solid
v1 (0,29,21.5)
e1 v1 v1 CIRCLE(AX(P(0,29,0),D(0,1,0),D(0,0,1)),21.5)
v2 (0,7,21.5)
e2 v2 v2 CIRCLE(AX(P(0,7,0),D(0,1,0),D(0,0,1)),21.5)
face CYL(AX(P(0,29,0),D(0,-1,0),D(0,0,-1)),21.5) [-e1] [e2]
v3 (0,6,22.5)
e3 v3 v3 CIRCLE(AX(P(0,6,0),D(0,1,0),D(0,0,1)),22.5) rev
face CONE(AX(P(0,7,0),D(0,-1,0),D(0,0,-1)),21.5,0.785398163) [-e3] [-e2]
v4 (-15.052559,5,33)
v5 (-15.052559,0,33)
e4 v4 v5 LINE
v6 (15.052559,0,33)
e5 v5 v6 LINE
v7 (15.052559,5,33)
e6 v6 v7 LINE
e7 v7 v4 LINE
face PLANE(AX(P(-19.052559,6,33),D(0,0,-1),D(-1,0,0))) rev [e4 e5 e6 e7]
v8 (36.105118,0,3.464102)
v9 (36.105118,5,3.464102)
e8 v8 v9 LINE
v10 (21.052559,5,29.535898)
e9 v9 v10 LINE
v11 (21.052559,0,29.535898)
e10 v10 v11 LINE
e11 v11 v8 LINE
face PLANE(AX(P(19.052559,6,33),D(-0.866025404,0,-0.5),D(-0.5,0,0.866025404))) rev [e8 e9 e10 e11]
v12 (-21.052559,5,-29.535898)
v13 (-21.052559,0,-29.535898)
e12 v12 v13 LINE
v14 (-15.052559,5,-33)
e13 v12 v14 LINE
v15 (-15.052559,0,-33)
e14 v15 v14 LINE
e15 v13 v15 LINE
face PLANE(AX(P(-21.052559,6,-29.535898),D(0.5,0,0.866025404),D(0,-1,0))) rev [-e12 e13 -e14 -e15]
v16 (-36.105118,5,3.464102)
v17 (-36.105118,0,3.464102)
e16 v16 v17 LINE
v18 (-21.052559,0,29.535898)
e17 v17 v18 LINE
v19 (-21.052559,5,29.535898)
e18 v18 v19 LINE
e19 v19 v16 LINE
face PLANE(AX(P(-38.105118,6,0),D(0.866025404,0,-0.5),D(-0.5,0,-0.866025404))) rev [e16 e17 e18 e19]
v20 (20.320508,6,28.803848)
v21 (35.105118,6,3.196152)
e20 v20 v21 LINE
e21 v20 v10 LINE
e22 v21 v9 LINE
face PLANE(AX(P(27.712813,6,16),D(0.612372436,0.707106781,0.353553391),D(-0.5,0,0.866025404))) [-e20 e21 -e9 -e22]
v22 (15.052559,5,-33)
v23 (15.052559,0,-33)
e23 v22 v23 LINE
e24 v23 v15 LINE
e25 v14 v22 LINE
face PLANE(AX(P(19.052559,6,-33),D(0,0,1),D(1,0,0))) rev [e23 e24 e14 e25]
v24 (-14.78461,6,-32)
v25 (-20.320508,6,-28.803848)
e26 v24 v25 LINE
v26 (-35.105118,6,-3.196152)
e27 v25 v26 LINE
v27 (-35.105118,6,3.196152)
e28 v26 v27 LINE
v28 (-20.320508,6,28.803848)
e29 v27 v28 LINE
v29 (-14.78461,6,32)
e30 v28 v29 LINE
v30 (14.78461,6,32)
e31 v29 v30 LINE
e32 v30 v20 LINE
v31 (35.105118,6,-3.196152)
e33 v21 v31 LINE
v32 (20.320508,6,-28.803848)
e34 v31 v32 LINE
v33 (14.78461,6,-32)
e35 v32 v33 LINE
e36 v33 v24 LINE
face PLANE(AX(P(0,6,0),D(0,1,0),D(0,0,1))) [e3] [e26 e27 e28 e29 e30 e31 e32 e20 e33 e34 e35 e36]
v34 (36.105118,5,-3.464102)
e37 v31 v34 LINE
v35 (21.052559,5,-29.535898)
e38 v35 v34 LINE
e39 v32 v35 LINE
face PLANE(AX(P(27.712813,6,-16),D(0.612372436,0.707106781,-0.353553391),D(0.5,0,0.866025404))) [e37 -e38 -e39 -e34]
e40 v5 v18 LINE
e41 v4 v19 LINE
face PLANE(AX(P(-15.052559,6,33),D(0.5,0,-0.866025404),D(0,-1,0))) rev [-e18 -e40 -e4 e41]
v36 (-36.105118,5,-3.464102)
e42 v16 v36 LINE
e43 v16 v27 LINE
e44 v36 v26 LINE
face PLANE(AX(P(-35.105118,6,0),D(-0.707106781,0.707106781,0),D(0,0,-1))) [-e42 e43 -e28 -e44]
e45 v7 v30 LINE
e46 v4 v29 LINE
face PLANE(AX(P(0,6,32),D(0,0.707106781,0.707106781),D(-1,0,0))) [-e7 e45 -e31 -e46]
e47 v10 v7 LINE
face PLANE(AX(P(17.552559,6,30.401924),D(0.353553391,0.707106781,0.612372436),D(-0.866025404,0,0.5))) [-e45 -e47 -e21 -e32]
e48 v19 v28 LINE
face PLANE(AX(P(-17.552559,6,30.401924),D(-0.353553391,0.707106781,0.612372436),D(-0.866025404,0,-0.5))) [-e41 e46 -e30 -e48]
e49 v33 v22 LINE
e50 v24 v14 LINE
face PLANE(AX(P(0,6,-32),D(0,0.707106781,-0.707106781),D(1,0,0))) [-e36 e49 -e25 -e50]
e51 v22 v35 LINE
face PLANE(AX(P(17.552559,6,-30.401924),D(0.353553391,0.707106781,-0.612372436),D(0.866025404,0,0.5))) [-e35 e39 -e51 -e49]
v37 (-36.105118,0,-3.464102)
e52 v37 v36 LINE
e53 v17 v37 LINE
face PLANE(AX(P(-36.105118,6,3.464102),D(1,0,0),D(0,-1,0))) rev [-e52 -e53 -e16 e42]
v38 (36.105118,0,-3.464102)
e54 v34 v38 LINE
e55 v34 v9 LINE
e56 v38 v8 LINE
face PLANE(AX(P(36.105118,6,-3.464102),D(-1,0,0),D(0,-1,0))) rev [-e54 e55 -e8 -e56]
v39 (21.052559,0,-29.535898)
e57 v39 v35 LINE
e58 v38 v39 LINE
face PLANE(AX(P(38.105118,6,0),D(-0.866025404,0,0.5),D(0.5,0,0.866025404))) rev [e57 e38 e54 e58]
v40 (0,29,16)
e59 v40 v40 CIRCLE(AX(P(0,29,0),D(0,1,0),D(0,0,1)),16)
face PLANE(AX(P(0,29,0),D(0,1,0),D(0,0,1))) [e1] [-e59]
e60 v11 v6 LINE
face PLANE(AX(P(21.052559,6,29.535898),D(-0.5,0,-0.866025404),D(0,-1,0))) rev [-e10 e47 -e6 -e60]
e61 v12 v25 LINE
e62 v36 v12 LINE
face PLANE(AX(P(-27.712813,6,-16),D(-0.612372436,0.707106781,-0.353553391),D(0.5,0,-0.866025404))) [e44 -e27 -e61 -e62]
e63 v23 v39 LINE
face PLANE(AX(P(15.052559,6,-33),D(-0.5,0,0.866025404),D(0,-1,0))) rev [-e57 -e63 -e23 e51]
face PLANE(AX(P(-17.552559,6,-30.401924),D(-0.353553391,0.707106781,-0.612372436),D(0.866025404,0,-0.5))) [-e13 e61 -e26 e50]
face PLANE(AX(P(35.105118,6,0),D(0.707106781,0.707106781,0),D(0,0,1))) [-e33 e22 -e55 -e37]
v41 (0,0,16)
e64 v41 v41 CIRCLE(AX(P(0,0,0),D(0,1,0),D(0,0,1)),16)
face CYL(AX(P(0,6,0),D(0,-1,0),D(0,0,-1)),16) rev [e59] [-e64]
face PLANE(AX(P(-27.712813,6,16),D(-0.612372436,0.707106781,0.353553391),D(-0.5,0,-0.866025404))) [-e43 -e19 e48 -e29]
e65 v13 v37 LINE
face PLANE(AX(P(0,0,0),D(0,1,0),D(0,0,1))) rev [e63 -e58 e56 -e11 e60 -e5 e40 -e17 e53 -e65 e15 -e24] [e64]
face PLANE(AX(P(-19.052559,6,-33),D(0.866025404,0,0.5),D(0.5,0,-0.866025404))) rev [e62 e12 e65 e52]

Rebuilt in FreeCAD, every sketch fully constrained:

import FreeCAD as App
import Part
import Sketcher

V = App.Vector
Q = App.Units.Quantity


def edges_at(feature, points):
    """Names of the edges that pass closest to the given points."""
    edges = feature.Shape.Edges
    near = lambda p: min(range(len(edges)), key=lambda i: edges[i].distToShape(Part.Vertex(*p))[0])
    return sorted({f"Edge{near(p) + 1}" for p in points})

doc = App.newDocument("Part")
body = doc.addObject("PartDesign::Body", "Body")

# Sketch on XZ plane
sketch1 = body.newObject("Sketcher::SketchObject", "Sketch")
sketch1.AttachmentSupport = (doc.getObject("XZ_Plane"), [""])
sketch1.MapMode = "FlatFace"
sketch1.addGeometry([
    Part.LineSegment(V(38.105118, 0, 0), V(19.052559, -33, 0)),  # 0
    Part.LineSegment(V(19.052559, -33, 0), V(-19.052559, -33, 0)),  # 1
    Part.LineSegment(V(-19.052559, -33, 0), V(-38.105118, 0, 0)),  # 2
    Part.LineSegment(V(-38.105118, 0, 0), V(-19.052559, 33, 0)),  # 3
    Part.LineSegment(V(-19.052559, 33, 0), V(19.052559, 33, 0)),  # 4
    Part.LineSegment(V(19.052559, 33, 0), V(38.105118, 0, 0)),  # 5
    Part.Circle(V(0, 0, 0), V(0, 0, 1), 16),  # 6
], False)
sketch1.addConstraint([
    Sketcher.Constraint("Coincident", 0, 2, 1, 1),
    Sketcher.Constraint("Coincident", 1, 2, 2, 1),
    Sketcher.Constraint("Coincident", 2, 2, 3, 1),
    Sketcher.Constraint("Coincident", 3, 2, 4, 1),
    Sketcher.Constraint("Coincident", 4, 2, 5, 1),
    Sketcher.Constraint("Coincident", 5, 2, 0, 1),
    Sketcher.Constraint("Horizontal", 1),
    Sketcher.Constraint("Horizontal", 4),
    Sketcher.Constraint("Coincident", 6, 3, -1, 1),
    Sketcher.Constraint("Symmetric", 0, 2, 3, 2, -1, 1),
    Sketcher.Constraint("Symmetric", 2, 2, 5, 2, -1, 1),
    Sketcher.Constraint("PointOnObject", 2, 2, -1),
    Sketcher.Constraint("Parallel", 2, 5),
    Sketcher.Constraint("Vertical", 1, 2, 3, 2),
    Sketcher.Constraint("Diameter", 6, Q("32 mm")),
    Sketcher.Constraint("Angle", 0, Q("-120 deg")),
    Sketcher.Constraint("DistanceY", 0, 2, -1, 1, Q("33 mm")),
    Sketcher.Constraint("DistanceX", 1, 2, 1, 1, Q("38.105118 mm")),
])
pad1 = body.newObject("PartDesign::Pad", "Pad")
pad1.Profile = sketch1
pad1.Length = 6
pad1.Reversed = True

# Sketch on XZ plane
sketch2 = body.newObject("Sketcher::SketchObject", "Sketch001")
sketch2.AttachmentSupport = (doc.getObject("XZ_Plane"), [""])
sketch2.MapMode = "FlatFace"
sketch2.AttachmentOffset = App.Placement(V(0, 0, -6), App.Rotation())
sketch2.addGeometry([
    Part.Circle(V(0, 0, 0), V(0, 0, 1), 21.5),
    Part.Circle(V(0, 0, 0), V(0, 0, 1), 16),
], False)
sketch2.addConstraint([
    Sketcher.Constraint("Coincident", 0, 3, -1, 1),
    Sketcher.Constraint("Coincident", 1, 3, -1, 1),
    Sketcher.Constraint("Diameter", 0, Q("43 mm")),
    Sketcher.Constraint("Diameter", 1, Q("32 mm")),
])
pad2 = body.newObject("PartDesign::Pad", "Pad001")
pad2.Profile = sketch2
pad2.Length = 23
pad2.Reversed = True
doc.recompute()

chamfer = body.newObject("PartDesign::Chamfer", "Chamfer")
chamfer.Base = (pad2, edges_at(pad2, [
    (19.053, 3, 33),
    (-19.053, 3, 33),
    (-38.105, 3, 0),
    (-19.053, 3, -33),
    (19.053, 3, -33),
    (38.105, 3, 0),
]))
chamfer.Size = 4
doc.recompute()

chamfer2 = body.newObject("PartDesign::Chamfer", "Chamfer001")
chamfer2.Base = (chamfer, edges_at(chamfer, [
    (0, 6, -21.5),
    (-28.579, 6, 16.5),
    (-28.579, 6, -16.5),
    (28.579, 6, 16.5),
    (28.579, 6, -16.5),
    (0, 6, -33),
    (0, 6, 33),
    (-18.053, 6, -31.268),
    (18.053, 6, -31.268),
    (36.105, 6, 0),
    (18.053, 6, 31.268),
    (-18.053, 6, 31.268),
    (-36.105, 6, 0),
]))
chamfer2.Size = 1

doc.recompute()
